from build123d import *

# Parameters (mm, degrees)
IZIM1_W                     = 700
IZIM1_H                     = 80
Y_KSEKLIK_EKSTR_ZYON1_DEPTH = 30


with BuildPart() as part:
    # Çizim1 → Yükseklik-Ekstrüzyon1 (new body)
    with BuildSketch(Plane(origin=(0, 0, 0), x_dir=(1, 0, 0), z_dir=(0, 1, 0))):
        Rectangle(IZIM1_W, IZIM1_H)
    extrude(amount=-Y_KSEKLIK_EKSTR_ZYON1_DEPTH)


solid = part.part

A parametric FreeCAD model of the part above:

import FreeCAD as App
import Part
import Sketcher

V = App.Vector
Q = App.Units.Quantity

doc = App.newDocument("Part")
body = doc.addObject("PartDesign::Body", "Body")

sketch1 = body.newObject("Sketcher::SketchObject", "Sketch")
sketch1.AttachmentSupport = (doc.getObject("XZ_Plane"), [""])
sketch1.MapMode = "FlatFace"
sketch1.addGeometry(Part.LineSegment(V(-350, -40, 0), V(-350, 40, 0)), False)
sketch1.addGeometry(Part.LineSegment(V(-350, 40, 0), V(350, 40, 0)), False)
sketch1.addGeometry(Part.LineSegment(V(350, 40, 0), V(350, -40, 0)), False)
sketch1.addGeometry(Part.LineSegment(V(350, -40, 0), V(-350, -40, 0)), False)
sketch1.addConstraint(Sketcher.Constraint("Coincident", 0, 2, 1, 1))
sketch1.addConstraint(Sketcher.Constraint("Coincident", 1, 2, 2, 1))
sketch1.addConstraint(Sketcher.Constraint("Coincident", 2, 2, 3, 1))
sketch1.addConstraint(Sketcher.Constraint("Coincident", 3, 2, 0, 1))
sketch1.addConstraint(Sketcher.Constraint("Vertical", 0))
sketch1.addConstraint(Sketcher.Constraint("Horizontal", 1))
sketch1.addConstraint(Sketcher.Constraint("Vertical", 2))
sketch1.addConstraint(Sketcher.Constraint("Horizontal", 3))
sketch1.addConstraint(Sketcher.Constraint("Symmetric", 0, 2, 2, 2, -1, 1))
sketch1.addConstraint(Sketcher.Constraint("DistanceX", 1, 1, 1, 2, Q("700 mm")))
sketch1.addConstraint(Sketcher.Constraint("DistanceY", 0, 1, 0, 2, Q("80 mm")))
pad1 = body.newObject("PartDesign::Pad", "Pad")
pad1.Profile = sketch1
pad1.Length = 30

doc.recompute()
